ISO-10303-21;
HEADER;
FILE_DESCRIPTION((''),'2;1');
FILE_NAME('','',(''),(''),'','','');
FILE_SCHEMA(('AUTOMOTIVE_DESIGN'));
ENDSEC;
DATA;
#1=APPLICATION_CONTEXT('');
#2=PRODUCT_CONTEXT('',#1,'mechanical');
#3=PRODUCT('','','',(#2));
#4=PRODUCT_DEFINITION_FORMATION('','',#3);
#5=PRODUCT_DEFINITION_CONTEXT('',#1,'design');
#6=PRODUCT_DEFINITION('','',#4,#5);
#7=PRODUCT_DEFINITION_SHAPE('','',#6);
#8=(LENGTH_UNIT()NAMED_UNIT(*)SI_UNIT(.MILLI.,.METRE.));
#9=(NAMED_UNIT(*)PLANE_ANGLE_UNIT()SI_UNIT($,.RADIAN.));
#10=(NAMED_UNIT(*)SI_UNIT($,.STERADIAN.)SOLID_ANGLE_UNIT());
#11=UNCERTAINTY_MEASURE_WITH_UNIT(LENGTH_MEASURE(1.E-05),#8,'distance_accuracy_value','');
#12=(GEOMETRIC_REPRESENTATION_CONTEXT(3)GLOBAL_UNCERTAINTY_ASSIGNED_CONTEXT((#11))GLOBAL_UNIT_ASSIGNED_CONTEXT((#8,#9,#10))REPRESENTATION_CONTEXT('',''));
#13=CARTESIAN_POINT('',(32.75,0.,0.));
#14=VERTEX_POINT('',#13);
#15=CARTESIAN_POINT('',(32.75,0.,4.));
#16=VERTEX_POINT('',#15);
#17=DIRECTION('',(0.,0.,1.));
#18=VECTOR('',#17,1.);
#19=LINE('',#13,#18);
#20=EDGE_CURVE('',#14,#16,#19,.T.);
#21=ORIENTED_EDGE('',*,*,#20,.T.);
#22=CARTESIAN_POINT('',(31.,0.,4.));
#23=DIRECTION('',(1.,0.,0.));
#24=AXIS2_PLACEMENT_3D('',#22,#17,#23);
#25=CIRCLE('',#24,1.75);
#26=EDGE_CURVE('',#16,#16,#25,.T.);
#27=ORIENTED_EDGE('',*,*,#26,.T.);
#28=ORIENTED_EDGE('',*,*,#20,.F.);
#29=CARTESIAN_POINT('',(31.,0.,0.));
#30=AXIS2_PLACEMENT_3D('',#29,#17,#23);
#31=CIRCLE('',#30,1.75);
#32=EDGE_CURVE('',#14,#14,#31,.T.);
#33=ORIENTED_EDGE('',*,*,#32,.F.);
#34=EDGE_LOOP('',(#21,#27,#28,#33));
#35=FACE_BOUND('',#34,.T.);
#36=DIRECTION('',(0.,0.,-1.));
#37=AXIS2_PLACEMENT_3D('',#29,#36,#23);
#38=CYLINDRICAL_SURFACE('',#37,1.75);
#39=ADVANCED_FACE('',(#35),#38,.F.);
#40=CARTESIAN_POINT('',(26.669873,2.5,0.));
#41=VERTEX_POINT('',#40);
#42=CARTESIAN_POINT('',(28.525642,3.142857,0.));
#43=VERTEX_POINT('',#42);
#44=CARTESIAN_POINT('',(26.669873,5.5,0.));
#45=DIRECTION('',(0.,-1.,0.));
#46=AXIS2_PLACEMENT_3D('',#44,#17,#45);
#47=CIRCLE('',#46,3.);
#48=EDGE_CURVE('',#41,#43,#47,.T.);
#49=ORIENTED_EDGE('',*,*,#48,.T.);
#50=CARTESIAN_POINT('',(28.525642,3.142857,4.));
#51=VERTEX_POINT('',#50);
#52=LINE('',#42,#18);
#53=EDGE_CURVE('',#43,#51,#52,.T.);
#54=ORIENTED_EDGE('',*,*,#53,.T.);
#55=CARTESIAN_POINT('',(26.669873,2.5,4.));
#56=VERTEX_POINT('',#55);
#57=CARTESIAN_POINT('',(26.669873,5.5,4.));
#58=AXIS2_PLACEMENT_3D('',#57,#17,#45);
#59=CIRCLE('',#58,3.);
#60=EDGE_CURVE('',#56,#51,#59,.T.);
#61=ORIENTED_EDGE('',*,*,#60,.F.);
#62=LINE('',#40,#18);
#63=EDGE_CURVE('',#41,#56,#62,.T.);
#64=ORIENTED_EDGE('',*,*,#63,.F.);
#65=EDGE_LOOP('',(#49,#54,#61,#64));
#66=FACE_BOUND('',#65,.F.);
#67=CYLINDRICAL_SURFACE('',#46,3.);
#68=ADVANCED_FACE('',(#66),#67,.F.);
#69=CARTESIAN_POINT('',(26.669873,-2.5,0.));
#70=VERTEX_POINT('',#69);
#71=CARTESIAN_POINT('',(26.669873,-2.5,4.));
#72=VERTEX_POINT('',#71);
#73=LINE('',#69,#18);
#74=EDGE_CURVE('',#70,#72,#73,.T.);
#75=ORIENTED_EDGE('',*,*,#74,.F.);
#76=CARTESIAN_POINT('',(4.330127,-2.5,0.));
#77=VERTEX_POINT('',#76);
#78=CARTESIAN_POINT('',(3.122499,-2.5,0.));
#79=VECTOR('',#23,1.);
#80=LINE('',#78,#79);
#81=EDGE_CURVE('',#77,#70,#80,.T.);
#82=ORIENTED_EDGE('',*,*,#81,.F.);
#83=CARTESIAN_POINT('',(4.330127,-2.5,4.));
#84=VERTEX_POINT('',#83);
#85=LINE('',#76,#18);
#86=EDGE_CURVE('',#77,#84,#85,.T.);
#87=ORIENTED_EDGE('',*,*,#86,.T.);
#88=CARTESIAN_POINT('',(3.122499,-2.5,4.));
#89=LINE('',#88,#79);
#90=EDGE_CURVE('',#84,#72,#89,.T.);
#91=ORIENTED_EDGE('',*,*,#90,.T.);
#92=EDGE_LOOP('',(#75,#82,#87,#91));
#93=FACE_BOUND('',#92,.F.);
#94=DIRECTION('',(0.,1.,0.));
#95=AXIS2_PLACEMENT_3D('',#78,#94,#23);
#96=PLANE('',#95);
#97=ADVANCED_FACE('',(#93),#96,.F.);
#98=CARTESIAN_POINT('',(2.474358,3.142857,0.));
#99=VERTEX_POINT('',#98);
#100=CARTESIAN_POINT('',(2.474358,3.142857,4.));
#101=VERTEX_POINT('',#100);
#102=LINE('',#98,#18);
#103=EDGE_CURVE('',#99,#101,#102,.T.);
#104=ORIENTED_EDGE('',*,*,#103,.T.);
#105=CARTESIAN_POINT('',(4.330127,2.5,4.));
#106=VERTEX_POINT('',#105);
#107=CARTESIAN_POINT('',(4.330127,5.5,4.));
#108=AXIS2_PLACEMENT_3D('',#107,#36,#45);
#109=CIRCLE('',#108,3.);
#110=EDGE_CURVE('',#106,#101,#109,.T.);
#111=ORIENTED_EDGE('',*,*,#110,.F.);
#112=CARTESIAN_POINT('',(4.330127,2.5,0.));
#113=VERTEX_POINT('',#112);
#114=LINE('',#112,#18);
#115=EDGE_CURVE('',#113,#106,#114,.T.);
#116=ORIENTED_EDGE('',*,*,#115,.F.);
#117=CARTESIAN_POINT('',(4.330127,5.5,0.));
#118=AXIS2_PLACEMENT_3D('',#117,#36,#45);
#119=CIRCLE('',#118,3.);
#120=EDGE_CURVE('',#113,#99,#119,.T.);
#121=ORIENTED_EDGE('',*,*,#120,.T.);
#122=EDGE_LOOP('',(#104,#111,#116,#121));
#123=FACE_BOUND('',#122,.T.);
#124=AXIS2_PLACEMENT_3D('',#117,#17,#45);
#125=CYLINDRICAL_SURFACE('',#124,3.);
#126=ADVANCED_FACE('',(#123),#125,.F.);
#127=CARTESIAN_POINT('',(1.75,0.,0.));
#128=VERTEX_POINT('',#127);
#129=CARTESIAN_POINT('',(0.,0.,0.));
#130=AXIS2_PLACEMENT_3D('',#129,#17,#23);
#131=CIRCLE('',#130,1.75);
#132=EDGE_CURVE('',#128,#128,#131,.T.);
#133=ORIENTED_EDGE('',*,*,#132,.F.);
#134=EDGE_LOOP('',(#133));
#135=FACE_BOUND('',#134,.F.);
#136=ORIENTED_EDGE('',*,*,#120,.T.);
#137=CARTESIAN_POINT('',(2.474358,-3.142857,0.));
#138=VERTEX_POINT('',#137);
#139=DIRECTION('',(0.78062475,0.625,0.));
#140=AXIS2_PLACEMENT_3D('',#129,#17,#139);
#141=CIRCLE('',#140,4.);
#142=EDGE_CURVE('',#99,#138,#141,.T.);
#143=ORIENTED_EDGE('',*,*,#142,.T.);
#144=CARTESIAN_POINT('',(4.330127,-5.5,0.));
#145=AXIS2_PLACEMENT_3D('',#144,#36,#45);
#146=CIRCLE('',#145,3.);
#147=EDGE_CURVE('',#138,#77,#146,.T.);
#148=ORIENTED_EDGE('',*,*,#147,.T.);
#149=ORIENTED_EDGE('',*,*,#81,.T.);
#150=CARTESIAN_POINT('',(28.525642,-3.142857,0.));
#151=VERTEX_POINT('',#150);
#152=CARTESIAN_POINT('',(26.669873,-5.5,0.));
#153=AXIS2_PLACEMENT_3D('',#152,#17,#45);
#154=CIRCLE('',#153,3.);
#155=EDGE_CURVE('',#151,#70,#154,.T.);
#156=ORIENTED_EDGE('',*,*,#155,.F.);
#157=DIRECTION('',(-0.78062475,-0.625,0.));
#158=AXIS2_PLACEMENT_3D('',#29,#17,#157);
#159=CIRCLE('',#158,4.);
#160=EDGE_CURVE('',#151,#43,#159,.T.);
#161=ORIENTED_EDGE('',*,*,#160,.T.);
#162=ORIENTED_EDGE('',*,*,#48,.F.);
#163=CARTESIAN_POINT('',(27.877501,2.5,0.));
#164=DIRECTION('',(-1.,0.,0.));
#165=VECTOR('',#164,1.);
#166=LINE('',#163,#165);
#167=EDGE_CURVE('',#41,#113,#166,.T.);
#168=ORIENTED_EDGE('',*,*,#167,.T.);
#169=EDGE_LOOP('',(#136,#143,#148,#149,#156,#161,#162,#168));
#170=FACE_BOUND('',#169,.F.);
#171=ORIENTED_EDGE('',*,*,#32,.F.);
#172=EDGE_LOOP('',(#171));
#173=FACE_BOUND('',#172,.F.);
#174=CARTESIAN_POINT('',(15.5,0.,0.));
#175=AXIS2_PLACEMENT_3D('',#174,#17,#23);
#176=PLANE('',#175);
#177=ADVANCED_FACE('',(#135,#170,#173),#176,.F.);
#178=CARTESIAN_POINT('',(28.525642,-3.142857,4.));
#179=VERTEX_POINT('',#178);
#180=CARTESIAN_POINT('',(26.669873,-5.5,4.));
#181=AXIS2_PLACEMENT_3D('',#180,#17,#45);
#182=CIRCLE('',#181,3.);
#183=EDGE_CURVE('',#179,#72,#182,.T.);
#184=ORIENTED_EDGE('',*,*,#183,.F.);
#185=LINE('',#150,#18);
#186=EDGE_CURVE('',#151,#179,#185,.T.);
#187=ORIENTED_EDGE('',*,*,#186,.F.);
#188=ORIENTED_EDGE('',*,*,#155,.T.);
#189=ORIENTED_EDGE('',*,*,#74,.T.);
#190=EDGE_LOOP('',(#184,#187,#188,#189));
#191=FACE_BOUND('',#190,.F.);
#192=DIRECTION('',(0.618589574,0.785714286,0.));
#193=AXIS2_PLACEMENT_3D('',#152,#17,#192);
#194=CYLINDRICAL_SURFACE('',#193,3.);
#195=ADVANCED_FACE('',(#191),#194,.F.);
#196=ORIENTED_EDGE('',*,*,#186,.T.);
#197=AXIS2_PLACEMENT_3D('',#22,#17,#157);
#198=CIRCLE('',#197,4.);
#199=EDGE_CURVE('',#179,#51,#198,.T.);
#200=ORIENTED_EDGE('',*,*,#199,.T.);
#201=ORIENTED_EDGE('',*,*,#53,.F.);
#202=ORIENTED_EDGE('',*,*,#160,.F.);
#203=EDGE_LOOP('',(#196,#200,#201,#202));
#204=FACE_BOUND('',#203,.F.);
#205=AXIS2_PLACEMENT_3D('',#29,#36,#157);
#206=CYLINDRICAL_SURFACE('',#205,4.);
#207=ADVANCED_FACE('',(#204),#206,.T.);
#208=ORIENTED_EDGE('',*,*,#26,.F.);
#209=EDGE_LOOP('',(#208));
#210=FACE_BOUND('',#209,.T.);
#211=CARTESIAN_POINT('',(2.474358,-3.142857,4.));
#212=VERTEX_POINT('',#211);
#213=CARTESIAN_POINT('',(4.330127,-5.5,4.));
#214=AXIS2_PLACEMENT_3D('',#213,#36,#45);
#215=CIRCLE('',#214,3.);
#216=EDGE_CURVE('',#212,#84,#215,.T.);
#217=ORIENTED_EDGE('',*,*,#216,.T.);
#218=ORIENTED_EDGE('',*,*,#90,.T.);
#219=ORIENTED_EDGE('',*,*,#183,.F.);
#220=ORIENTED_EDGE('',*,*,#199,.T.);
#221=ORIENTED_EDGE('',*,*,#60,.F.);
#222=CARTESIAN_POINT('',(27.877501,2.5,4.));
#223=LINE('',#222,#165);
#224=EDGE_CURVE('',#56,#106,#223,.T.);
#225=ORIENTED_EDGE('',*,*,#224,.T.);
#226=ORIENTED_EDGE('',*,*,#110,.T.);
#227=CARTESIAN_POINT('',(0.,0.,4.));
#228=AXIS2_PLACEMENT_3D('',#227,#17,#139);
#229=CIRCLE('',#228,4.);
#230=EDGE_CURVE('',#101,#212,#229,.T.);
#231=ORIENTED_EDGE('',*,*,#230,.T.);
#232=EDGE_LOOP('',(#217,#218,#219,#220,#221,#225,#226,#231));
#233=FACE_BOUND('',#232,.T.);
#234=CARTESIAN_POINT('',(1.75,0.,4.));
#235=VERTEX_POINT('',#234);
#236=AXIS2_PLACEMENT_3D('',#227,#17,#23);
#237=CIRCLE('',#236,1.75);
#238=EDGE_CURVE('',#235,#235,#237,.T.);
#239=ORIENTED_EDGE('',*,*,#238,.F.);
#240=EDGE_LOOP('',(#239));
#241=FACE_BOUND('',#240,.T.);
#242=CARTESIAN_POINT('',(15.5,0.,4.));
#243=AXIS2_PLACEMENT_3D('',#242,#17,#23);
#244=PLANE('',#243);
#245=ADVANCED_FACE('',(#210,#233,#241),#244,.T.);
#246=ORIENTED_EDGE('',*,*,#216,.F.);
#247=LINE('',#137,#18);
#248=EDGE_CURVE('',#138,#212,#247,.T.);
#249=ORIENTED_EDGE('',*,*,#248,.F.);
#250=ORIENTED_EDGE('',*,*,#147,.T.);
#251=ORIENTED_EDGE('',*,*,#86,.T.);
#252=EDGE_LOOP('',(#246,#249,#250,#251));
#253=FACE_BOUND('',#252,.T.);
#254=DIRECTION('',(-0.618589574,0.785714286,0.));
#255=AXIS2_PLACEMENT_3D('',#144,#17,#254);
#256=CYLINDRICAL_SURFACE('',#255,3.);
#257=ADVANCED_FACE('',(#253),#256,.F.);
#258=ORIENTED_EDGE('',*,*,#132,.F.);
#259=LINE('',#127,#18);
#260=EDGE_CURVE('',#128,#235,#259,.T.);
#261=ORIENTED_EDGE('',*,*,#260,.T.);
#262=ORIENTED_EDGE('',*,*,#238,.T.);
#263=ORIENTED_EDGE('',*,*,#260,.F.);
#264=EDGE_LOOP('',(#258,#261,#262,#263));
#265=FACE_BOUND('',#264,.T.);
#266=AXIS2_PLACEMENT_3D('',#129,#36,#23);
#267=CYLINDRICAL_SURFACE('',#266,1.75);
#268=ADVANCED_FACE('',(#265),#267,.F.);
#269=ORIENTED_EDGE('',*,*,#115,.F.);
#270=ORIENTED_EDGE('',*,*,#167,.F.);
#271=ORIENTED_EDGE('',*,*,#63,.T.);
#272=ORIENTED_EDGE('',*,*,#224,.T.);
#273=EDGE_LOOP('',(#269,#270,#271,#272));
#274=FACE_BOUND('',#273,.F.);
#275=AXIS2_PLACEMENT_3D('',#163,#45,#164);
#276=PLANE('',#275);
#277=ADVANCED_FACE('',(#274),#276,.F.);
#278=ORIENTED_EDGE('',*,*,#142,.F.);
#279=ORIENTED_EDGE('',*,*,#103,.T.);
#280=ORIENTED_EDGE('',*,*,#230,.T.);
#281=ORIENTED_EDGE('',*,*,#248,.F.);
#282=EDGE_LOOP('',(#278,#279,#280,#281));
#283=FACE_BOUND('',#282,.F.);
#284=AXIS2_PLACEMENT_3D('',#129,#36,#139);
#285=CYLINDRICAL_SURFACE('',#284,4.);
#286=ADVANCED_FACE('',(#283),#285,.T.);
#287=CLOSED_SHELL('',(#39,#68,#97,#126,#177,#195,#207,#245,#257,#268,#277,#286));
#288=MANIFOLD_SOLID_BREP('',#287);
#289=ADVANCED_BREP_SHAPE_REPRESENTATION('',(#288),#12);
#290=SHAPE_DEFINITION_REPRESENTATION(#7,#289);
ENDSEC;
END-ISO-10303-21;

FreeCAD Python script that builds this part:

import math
import FreeCAD as App
import Part
import Sketcher

V = App.Vector


def edges_at(feature, points):
    """Names of the edges that pass closest to the given points."""
    edges = feature.Shape.Edges
    near = lambda p: min(range(len(edges)), key=lambda i: edges[i].distToShape(Part.Vertex(*p))[0])
    return sorted({f"Edge{near(p) + 1}" for p in points})

doc = App.newDocument("Part")
params = doc.addObject("Spreadsheet::Sheet", "Params")
for row, (alias, value) in enumerate([
    ("sketch1_radius", "4 mm"),
    ("sketch1_diameter", "3.5 mm"),
    ("pad1_length", "4 mm"),
    ("fillet_radius", "3 mm"),
], start=1):
    params.set(f"A{row}", alias)
    params.set(f"B{row}", "=" + value)
    params.setAlias(f"B{row}", alias)

body = doc.addObject("PartDesign::Body", "Body")

sketch1 = body.newObject("Sketcher::SketchObject", "Sketch")
sketch1.AttachmentSupport = (doc.getObject("XY_Plane"), [""])
sketch1.MapMode = "FlatFace"
sketch1.addGeometry(Part.LineSegment(V(27.9, 2.5, 0), V(3.1, 2.5, 0)), False)
sketch1.addGeometry(Part.ArcOfCircle(Part.Circle(V(0, 0, 0), V(0, 0, 1), 4), math.radians(39), math.radians(321)), False)
sketch1.addGeometry(Part.LineSegment(V(3.1, -2.5, 0), V(27.9, -2.5, 0)), False)
sketch1.addGeometry(Part.ArcOfCircle(Part.Circle(V(31, 0, 0), V(0, 0, 1), 4), math.radians(-141), math.radians(141)), False)
sketch1.addGeometry(Part.Circle(V(0, 0, 0), V(0, 0, 1), 1.8), False)
sketch1.addGeometry(Part.Circle(V(31, 0, 0), V(0, 0, 1), 1.8), False)
sketch1.addConstraint(Sketcher.Constraint("Coincident", 0, 2, 1, 1))
sketch1.addConstraint(Sketcher.Constraint("Coincident", 1, 2, 2, 1))
sketch1.addConstraint(Sketcher.Constraint("Coincident", 2, 2, 3, 1))
sketch1.addConstraint(Sketcher.Constraint("Coincident", 3, 2, 0, 1))
sketch1.addConstraint(Sketcher.Constraint("Horizontal", 0))
sketch1.addConstraint(Sketcher.Constraint("Horizontal", 2))
sketch1.addConstraint(Sketcher.Constraint("Coincident", 1, 3, -1, 1))
sketch1.addConstraint(Sketcher.Constraint("Coincident", 4, 3, -1, 1))
sketch1.addConstraint(Sketcher.Constraint("Coincident", 5, 3, 3, 3))
sketch1.addConstraint(Sketcher.Constraint("Equal", 1, 3))
sketch1.addConstraint(Sketcher.Constraint("Equal", 4, 5))
sketch1.addConstraint(Sketcher.Constraint("Symmetric", 2, 2, 3, 2, -1))
sketch1.addConstraint(Sketcher.Constraint("Radius", 1, 4.0))
sketch1.addConstraint(Sketcher.Constraint("Diameter", 4, 3.5))
sketch1.addConstraint(Sketcher.Constraint("DistanceX", -1, 1, 3, 3, 31.0))
sketch1.addConstraint(Sketcher.Constraint("DistanceY", 1, 2, 0, 2, 5.0))
sketch1.setExpression("Constraints[12]", "Params.sketch1_radius")
sketch1.setExpression("Constraints[13]", "Params.sketch1_diameter")
pad1 = body.newObject("PartDesign::Pad", "Pad")
pad1.Profile = sketch1
pad1.setExpression("Length", "Params.pad1_length")
doc.recompute()

fillet = body.newObject("PartDesign::Fillet", "Fillet")
fillet.Base = (pad1, edges_at(pad1, [
    (3.122, -2.5, 2),
    (3.122, 2.5, 2),
    (27.878, 2.5, 2),
    (27.878, -2.5, 2),
]))
fillet.setExpression("Radius", "Params.fillet_radius")

doc.recompute()
